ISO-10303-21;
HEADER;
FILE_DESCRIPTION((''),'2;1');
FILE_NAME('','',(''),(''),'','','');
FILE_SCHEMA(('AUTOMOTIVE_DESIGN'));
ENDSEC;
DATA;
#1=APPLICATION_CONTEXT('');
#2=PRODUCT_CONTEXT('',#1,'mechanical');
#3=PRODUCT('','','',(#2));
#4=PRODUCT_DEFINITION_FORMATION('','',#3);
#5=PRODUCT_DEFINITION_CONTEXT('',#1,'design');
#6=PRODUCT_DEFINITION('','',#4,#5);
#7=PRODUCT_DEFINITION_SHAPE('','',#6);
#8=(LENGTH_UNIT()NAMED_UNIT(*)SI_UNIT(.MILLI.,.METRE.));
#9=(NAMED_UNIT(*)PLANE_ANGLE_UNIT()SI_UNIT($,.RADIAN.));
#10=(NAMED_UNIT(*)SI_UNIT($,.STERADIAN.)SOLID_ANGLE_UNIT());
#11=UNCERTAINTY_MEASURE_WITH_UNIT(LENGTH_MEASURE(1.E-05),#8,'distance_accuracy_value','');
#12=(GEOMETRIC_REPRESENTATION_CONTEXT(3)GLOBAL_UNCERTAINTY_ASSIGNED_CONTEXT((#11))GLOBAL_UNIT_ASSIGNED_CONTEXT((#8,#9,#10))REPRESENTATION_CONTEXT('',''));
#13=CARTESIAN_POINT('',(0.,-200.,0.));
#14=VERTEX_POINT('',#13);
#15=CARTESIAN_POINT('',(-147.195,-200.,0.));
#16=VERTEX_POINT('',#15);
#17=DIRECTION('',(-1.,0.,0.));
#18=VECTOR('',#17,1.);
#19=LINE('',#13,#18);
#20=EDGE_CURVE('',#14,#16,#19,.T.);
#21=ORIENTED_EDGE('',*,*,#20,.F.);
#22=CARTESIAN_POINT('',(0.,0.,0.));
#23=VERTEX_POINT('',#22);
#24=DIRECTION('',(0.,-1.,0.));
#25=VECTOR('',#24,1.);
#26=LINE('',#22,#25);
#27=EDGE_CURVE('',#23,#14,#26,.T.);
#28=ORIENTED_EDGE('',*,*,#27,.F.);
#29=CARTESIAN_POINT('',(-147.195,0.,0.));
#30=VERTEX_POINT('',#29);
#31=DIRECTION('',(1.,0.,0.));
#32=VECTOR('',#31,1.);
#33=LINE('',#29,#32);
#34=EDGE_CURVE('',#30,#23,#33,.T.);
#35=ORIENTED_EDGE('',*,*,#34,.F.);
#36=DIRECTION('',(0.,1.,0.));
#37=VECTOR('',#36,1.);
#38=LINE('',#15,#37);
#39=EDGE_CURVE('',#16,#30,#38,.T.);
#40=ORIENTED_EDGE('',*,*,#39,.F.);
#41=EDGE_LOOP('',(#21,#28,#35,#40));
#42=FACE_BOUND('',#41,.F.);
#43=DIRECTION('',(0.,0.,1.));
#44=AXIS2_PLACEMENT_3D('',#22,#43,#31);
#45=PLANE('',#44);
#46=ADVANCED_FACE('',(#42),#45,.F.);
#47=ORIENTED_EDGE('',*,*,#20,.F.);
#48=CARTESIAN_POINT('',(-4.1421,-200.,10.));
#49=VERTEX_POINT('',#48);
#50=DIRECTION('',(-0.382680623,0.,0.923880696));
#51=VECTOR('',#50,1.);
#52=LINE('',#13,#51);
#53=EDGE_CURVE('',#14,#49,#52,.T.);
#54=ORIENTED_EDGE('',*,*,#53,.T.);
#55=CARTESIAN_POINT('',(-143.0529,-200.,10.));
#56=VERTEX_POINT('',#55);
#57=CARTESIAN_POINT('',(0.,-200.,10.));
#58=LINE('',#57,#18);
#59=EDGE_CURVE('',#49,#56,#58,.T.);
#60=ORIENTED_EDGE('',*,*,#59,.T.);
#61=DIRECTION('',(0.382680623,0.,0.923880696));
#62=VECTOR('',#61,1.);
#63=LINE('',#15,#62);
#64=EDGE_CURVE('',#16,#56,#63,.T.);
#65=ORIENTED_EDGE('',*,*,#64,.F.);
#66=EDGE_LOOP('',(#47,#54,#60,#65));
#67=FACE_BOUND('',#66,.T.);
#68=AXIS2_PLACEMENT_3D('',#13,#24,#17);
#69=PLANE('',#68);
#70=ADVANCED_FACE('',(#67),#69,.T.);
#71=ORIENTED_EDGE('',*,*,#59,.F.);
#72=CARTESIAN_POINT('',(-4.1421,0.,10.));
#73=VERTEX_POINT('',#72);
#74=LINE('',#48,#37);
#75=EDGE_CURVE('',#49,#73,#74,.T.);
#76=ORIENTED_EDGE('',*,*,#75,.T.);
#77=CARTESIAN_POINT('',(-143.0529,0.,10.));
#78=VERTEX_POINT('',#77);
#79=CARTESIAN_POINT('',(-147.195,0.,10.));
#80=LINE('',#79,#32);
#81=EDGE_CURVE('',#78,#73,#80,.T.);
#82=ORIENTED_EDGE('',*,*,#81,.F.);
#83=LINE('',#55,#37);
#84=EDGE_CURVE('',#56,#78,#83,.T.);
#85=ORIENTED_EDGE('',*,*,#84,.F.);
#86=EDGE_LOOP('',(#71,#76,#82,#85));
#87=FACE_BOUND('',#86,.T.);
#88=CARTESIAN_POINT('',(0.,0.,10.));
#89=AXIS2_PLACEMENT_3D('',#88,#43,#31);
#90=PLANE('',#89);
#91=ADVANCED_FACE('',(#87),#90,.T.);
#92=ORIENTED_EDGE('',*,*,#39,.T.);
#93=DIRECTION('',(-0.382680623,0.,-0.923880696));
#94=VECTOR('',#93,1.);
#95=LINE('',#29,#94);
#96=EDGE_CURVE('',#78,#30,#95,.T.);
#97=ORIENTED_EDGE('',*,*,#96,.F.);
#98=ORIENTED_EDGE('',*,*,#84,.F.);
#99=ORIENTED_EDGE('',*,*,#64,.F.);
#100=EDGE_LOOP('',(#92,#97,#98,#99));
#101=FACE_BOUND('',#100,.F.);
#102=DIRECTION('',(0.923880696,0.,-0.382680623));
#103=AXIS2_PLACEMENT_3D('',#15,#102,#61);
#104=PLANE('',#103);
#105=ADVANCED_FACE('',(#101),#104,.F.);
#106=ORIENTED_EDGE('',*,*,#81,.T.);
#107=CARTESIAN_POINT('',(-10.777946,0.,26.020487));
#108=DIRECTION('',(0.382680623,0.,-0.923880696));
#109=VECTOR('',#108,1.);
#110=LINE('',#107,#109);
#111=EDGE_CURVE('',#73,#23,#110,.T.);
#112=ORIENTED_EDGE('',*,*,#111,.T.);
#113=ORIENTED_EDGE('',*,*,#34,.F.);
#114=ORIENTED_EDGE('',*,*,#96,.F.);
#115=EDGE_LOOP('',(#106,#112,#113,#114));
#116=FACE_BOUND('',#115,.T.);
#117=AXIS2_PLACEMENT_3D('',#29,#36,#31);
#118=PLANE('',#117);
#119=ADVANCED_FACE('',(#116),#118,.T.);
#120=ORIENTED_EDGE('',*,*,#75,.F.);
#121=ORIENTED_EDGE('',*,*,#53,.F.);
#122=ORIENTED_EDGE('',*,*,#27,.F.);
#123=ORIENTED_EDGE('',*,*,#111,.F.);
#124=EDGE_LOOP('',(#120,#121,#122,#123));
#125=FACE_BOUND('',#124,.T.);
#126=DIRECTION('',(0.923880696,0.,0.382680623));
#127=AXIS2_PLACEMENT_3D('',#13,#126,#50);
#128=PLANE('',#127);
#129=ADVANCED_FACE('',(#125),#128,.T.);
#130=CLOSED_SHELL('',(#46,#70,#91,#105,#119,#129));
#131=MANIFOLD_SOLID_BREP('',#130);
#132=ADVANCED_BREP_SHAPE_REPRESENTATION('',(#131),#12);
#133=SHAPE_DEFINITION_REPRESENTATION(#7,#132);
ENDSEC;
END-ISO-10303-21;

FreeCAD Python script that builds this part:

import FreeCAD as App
import Part
import Sketcher

V = App.Vector
Q = App.Units.Quantity


def add_polygon(sketch, points):
    """Adds a closed chain of lines whose ends are joined by coincident constraints."""
    first, n = sketch.GeometryCount, len(points)
    for a, b in zip(points, points[1:] + points[:1]):
        sketch.addGeometry(Part.LineSegment(App.Vector(*a, 0), App.Vector(*b, 0)), False)
    for i in range(n):
        sketch.addConstraint(Sketcher.Constraint("Coincident", first + i, 2, first + (i + 1) % n, 1))

doc = App.newDocument("Part")
body = doc.addObject("PartDesign::Body", "Body")

# Sketch on XY plane
sketch1 = body.newObject("Sketcher::SketchObject", "Sketch")
sketch1.AttachmentSupport = (doc.getObject("XY_Plane"), [""])
sketch1.MapMode = "FlatFace"
add_polygon(sketch1, [(0, 0), (-147, 0), (-147, -200), (0, -200)])  # lines 0-3
sketch1.addConstraint([
    Sketcher.Constraint("Horizontal", 0),
    Sketcher.Constraint("Vertical", 1),
    Sketcher.Constraint("Horizontal", 2),
    Sketcher.Constraint("Vertical", 3),
    Sketcher.Constraint("Coincident", 3, 2, -1, 1),
    Sketcher.Constraint("DistanceY", 1, 2, 1, 1, 200.0),
    Sketcher.Constraint("DistanceX", 0, 2, 0, 1, 147.195),
])
pad1 = body.newObject("PartDesign::Pad", "Pad")
pad1.Profile = sketch1
pad1.Length = 10

# Sketch on XZ plane
sketch2 = body.newObject("Sketcher::SketchObject", "Sketch001")
sketch2.AttachmentSupport = (doc.getObject("XZ_Plane"), [""])
sketch2.MapMode = "FlatFace"
sketch2.AttachmentOffset = App.Placement(V(0, 0, 200), App.Rotation())
add_polygon(sketch2, [(0, 10), (-4.1, 10), (0, 0)])  # lines 0-2
add_polygon(sketch2, [(-147.2, 10), (-147.2, 0), (-143.1, 10)])  # lines 3-5
sketch2.addConstraint([
    Sketcher.Constraint("Horizontal", 0),
    Sketcher.Constraint("Vertical", 2),
    Sketcher.Constraint("Vertical", 3),
    Sketcher.Constraint("Horizontal", 5),
    Sketcher.Constraint("Coincident", 1, 2, -1, 1),
    Sketcher.Constraint("PointOnObject", 3, 2, -1),
    Sketcher.Constraint("Horizontal", 2, 2, 4, 2),
    Sketcher.Constraint("Equal", 0, 5),
    Sketcher.Constraint("Angle", 1, Q("-67.5002 deg")),
    Sketcher.Constraint("DistanceY", 2, 1, 2, 2, 10.0),
    Sketcher.Constraint("DistanceX", 3, 2, -1, 1, 147.195),
])
pocket1 = body.newObject("PartDesign::Pocket", "Pocket")
pocket1.Profile = sketch2
pocket1.Type = "ThroughAll"

doc.recompute()
